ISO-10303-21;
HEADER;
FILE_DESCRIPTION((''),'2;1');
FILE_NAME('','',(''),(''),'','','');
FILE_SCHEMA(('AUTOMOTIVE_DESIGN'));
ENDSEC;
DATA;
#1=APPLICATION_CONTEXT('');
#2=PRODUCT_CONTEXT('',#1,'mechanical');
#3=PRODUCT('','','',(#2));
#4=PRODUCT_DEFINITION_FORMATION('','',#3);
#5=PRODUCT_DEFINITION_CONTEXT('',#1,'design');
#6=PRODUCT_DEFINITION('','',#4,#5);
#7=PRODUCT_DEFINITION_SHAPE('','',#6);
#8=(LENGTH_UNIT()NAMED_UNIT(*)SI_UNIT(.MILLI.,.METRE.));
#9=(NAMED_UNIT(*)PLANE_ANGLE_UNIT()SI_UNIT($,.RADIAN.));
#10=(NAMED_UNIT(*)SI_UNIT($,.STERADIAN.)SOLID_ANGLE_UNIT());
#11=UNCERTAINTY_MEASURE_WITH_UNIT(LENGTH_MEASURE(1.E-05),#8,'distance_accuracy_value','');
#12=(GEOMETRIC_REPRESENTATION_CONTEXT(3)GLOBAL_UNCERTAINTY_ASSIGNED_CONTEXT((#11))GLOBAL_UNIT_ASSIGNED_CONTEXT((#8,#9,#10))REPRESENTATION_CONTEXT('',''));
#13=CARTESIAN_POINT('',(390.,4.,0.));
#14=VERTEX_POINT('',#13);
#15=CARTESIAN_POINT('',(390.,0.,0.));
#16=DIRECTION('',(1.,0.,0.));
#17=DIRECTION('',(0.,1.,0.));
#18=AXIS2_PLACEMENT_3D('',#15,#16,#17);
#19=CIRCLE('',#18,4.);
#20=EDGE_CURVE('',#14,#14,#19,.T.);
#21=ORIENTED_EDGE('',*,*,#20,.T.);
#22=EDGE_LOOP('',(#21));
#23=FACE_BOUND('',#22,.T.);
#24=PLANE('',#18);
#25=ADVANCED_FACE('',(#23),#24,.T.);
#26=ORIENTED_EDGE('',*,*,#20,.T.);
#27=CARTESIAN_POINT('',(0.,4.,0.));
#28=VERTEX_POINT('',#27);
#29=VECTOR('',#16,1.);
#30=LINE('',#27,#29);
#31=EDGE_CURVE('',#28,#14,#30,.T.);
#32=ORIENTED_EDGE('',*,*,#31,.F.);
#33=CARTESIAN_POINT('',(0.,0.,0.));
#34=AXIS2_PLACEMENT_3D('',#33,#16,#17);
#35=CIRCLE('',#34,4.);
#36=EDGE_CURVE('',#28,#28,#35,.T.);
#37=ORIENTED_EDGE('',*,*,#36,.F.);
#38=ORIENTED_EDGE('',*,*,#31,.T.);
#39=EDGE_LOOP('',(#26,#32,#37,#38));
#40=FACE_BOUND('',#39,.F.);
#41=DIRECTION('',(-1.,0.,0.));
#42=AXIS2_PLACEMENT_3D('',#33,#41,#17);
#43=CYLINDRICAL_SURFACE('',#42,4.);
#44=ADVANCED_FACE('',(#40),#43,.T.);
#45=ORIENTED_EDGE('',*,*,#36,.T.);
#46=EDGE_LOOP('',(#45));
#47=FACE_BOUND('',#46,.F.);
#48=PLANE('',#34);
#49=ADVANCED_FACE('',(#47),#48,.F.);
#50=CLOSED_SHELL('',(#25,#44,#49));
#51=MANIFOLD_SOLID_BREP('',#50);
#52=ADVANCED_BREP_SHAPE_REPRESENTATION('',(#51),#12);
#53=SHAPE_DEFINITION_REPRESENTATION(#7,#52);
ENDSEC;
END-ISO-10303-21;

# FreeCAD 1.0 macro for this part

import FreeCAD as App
import Part
import Sketcher
from FreeCAD import Vector

doc = App.newDocument("Part")
body = doc.addObject("PartDesign::Body", "Body")

sketch1 = doc.addObject("Sketcher::SketchObject", "Sketch")
body.addObject(sketch1)
sketch1.AttachmentSupport = (doc.YZ_Plane, [""])
sketch1.MapMode = "FlatFace"
sketch1.addGeometry(Part.Circle(Vector(0, 0, 0), Vector(0, 0, 1), 4), False)
sketch1.addConstraint(Sketcher.Constraint("Coincident", 0, 3, -1, 1))
sketch1.addConstraint(Sketcher.Constraint("Diameter", 0, 8.0))
pad1 = doc.addObject("PartDesign::Pad", "Pad")
body.addObject(pad1)
pad1.Profile = sketch1
pad1.Length = 390

doc.recompute()
